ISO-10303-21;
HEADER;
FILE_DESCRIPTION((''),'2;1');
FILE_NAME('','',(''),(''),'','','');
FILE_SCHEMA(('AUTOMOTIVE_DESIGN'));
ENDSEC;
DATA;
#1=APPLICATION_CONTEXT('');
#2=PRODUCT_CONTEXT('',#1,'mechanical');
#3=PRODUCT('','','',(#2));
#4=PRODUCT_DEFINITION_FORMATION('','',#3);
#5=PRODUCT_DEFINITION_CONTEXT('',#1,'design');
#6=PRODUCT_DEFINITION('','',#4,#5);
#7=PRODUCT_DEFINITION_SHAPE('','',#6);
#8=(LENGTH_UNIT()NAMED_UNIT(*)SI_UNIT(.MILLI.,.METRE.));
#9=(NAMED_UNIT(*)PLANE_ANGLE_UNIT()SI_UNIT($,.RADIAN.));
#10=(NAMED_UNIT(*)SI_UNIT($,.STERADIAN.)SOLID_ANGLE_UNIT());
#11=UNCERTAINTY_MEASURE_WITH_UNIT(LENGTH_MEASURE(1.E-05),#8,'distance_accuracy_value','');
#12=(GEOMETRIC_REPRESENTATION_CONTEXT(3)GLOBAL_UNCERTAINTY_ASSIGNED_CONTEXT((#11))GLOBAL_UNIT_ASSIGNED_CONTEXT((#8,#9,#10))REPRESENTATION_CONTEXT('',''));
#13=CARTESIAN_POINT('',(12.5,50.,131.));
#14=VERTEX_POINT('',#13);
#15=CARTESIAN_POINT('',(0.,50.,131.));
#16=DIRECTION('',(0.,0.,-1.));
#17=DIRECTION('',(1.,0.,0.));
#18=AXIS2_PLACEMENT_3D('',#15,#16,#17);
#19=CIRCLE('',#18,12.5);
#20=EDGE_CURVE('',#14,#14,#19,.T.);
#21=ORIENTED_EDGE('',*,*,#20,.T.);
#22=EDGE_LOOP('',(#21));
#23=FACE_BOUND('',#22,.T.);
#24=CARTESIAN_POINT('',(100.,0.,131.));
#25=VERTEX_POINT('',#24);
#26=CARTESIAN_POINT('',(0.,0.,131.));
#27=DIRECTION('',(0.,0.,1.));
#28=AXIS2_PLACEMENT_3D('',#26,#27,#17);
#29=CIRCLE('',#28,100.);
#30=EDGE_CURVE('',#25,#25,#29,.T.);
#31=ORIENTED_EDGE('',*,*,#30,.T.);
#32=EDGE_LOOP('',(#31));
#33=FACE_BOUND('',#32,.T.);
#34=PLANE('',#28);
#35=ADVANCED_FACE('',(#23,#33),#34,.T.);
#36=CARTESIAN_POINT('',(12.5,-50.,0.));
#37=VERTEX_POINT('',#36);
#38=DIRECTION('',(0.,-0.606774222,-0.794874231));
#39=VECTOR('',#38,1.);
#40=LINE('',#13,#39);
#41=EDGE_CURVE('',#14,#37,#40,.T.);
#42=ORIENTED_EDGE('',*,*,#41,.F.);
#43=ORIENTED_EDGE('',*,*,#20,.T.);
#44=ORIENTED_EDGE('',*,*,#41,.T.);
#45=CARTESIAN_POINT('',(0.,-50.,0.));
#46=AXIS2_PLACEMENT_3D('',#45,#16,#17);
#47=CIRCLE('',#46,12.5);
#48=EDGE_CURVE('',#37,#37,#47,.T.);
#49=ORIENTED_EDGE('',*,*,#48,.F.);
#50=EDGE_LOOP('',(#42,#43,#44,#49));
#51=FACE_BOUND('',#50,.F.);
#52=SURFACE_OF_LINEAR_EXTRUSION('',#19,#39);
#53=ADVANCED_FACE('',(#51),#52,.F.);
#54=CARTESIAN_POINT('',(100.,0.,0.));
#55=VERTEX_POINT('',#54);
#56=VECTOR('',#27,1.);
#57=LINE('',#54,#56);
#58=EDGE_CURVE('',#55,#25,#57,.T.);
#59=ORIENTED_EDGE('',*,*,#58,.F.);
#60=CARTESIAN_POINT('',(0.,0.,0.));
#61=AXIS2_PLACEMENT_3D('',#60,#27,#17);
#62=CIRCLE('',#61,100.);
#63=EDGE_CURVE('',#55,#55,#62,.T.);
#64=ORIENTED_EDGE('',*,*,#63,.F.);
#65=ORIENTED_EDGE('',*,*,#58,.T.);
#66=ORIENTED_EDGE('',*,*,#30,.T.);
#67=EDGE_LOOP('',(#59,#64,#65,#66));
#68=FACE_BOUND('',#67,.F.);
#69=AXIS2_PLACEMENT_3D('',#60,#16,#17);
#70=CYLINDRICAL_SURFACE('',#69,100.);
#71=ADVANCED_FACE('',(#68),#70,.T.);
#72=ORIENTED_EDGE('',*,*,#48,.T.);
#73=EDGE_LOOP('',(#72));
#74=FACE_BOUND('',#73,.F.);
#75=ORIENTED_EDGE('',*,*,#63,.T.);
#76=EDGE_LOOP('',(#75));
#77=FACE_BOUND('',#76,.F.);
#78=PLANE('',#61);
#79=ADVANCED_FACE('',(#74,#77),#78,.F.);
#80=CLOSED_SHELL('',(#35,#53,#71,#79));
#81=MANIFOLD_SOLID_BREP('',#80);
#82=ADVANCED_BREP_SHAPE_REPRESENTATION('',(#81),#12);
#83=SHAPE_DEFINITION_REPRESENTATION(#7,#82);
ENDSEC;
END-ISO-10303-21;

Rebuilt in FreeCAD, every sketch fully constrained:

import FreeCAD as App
import Part
import Sketcher
from FreeCAD import Vector
Q = App.Units.Quantity

doc = App.newDocument("Part")
body = doc.addObject("PartDesign::Body", "Body")

sketch1 = body.newObject("Sketcher::SketchObject", "Sketch")
sketch1.AttachmentSupport = (doc.getObject("XY_Plane"), [""])
sketch1.MapMode = "FlatFace"
sketch1.addGeometry(Part.Circle(Vector(0, 0, 0), Vector(0, 0, 1), 100), False)
sketch1.addConstraint([
    Sketcher.Constraint("Coincident", 0, 3, -1, 1),
    Sketcher.Constraint("Diameter", 0, Q("200 mm")),
])
pad1 = body.newObject("PartDesign::Pad", "Pad")
pad1.Profile = sketch1
pad1.Length = 131

sketch2 = body.newObject("Sketcher::SketchObject", "Sketch001")
sketch2.AttachmentSupport = (doc.getObject("XY_Plane"), [""])
sketch2.MapMode = "FlatFace"
sketch2.addGeometry(Part.Circle(Vector(0, -50, 0), Vector(0, 0, 1), 12), False)
sketch2.addConstraint([
    Sketcher.Constraint("PointOnObject", 0, 3, -2),
    Sketcher.Constraint("Diameter", 0, Q("25 mm")),
    Sketcher.Constraint("DistanceY", 0, 3, -1, 1, Q("50 mm")),
])

sketch3 = body.newObject("Sketcher::SketchObject", "Sketch002")
sketch3.Placement = App.Placement(Vector(0, -31.591252, 24.11546), App.Rotation(Vector(0, 0.606774222, 0.794874231), Vector(1, 0, 0), Vector(0, 0.794874231, -0.606774222), "ZXY"))
sketch3.addGeometry(Part.LineSegment(Vector(134, 0, 0), Vector(-30, 0, 0)), False)
sketch3.addConstraint([
    Sketcher.Constraint("Horizontal", 0),
    Sketcher.Constraint("PointOnObject", 0, 1, -1),
    Sketcher.Constraint("DistanceX", 0, 2, 0, 1, Q("164.805946 mm")),
    Sketcher.Constraint("DistanceX", 0, 2, -1, 1, Q("30.338711 mm")),
])
doc.recompute()

subtractivepipe = body.newObject("PartDesign::SubtractivePipe", "SubtractivePipe")
subtractivepipe.Profile = sketch2
subtractivepipe.Spine = (sketch3, ["Edge1"])

doc.recompute()
